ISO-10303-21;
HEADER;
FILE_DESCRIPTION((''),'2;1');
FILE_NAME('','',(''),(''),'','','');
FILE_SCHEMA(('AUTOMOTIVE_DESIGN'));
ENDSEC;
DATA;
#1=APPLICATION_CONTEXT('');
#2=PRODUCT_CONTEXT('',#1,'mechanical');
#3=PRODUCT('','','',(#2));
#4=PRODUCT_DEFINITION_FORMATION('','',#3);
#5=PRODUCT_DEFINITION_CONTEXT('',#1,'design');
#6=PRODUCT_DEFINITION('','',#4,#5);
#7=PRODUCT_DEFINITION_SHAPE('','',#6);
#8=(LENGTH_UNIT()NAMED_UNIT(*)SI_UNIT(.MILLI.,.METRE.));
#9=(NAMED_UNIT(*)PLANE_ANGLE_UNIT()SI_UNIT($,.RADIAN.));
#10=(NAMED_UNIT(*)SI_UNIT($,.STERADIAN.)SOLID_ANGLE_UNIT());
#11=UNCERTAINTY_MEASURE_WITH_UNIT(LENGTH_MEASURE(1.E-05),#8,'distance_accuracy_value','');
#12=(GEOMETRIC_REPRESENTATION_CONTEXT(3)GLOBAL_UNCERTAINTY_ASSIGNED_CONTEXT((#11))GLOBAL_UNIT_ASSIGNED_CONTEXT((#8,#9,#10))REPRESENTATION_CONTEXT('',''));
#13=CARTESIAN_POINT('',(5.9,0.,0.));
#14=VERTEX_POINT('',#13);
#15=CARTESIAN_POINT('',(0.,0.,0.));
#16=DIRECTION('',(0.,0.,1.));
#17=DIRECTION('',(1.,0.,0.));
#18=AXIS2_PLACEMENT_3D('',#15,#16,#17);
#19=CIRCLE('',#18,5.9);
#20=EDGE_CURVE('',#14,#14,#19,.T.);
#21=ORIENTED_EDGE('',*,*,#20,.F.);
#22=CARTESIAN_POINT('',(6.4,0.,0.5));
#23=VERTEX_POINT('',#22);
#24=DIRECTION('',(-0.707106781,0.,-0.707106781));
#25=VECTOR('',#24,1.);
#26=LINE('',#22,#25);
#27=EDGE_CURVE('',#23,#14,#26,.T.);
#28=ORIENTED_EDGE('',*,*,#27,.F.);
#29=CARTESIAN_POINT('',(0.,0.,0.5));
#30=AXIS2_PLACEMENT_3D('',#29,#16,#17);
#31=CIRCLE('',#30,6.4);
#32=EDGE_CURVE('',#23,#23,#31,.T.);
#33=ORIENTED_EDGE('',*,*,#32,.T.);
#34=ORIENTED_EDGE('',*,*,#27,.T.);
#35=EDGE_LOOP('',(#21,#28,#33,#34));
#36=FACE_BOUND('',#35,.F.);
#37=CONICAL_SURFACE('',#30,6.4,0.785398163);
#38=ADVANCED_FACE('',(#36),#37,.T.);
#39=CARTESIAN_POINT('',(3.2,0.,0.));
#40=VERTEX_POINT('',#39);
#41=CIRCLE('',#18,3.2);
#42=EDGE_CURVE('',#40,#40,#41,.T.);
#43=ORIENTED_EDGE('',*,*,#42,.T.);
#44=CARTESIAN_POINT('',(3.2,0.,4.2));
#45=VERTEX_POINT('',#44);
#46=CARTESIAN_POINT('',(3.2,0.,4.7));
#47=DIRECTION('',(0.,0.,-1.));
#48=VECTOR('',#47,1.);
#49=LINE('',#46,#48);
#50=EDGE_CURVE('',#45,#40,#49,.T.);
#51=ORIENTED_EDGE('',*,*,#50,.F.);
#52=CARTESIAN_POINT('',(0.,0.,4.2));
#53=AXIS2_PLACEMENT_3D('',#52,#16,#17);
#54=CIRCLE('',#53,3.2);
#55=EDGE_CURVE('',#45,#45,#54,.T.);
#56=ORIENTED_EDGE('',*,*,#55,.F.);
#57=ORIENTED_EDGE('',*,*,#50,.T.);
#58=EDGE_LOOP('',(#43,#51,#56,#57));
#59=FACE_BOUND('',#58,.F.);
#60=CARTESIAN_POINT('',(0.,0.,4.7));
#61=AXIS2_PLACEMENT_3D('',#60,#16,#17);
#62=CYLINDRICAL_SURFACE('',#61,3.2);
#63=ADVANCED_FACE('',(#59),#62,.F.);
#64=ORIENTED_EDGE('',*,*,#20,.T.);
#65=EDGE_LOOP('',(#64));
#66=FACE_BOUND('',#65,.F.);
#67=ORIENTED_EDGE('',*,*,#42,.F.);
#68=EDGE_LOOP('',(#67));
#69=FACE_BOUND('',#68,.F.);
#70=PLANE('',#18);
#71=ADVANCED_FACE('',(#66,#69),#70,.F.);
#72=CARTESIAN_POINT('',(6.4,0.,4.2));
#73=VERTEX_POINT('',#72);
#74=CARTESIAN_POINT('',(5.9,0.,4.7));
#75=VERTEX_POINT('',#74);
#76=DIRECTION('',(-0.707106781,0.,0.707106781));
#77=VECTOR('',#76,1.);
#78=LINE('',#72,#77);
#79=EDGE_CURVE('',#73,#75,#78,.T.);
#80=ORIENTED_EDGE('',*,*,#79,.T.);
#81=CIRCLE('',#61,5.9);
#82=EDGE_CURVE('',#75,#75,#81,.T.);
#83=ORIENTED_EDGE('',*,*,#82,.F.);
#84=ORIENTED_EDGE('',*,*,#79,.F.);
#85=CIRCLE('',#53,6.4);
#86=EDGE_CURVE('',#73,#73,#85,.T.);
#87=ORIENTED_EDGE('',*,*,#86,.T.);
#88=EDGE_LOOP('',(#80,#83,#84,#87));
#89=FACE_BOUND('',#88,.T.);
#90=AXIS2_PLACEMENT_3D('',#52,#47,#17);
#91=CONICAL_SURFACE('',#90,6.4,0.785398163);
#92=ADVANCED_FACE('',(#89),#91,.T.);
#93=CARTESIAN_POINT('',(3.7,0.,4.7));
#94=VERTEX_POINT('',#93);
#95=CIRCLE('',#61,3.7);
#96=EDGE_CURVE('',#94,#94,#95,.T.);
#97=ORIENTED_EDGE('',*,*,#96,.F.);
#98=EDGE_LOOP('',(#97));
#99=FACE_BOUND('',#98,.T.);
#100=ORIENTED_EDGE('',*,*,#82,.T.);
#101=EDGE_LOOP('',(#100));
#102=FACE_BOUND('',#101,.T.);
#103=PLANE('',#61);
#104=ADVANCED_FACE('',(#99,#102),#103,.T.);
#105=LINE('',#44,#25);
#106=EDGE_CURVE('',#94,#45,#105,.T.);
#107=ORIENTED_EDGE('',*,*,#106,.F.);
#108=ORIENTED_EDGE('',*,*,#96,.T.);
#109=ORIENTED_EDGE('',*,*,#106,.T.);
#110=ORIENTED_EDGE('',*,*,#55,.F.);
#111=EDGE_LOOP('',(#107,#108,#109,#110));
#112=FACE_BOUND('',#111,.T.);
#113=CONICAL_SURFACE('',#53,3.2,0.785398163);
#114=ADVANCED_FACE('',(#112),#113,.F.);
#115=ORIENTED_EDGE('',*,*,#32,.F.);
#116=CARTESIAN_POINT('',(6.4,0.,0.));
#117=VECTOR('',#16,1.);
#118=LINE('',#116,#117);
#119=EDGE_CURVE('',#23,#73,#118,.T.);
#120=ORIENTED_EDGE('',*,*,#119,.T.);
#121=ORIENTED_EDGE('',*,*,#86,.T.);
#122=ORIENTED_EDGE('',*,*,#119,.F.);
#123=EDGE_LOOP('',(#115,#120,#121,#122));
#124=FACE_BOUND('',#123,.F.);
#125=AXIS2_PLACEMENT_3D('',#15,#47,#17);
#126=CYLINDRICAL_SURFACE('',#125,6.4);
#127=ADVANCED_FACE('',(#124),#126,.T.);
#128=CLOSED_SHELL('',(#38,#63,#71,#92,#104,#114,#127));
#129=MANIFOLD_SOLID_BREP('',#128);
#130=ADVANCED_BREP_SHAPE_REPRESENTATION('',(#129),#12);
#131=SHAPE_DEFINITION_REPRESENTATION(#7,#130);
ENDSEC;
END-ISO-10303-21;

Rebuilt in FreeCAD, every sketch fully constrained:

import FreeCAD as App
import Part
import Sketcher


def edges_at(feature, points):
    """Names of the edges that pass closest to the given points."""
    edges = feature.Shape.Edges
    near = lambda p: min(range(len(edges)), key=lambda i: edges[i].distToShape(Part.Vertex(*p))[0])
    return sorted({f"Edge{near(p) + 1}" for p in points})

doc = App.newDocument("Part")
body = doc.addObject("PartDesign::Body", "Body")

# Sketch on XY plane
sketch1 = body.newObject("Sketcher::SketchObject", "Sketch")
sketch1.AttachmentSupport = (doc.getObject("XY_Plane"), [""])
sketch1.MapMode = "FlatFace"
sketch1.addGeometry(Part.Circle(App.Vector(0, 0, 0), App.Vector(0, 0, 1), 6.4), False)
sketch1.addConstraint(Sketcher.Constraint("Coincident", 0, 3, -1, 1))
sketch1.addConstraint(Sketcher.Constraint("Diameter", 0, 12.8))
pad1 = body.newObject("PartDesign::Pad", "Pad")
pad1.Profile = sketch1
pad1.Length = 4.7

# Sketch on XY plane
sketch2 = body.newObject("Sketcher::SketchObject", "Sketch001")
sketch2.AttachmentSupport = (doc.getObject("XY_Plane"), [""])
sketch2.MapMode = "FlatFace"
sketch2.AttachmentOffset = App.Placement(App.Vector(0, 0, 4.7), App.Rotation())
sketch2.addGeometry(Part.Circle(App.Vector(0, 0, 0), App.Vector(0, 0, 1), 3.2), False)
sketch2.addConstraint(Sketcher.Constraint("Coincident", 0, 3, -1, 1))
sketch2.addConstraint(Sketcher.Constraint("Diameter", 0, 6.4))
pocket1 = body.newObject("PartDesign::Pocket", "Pocket")
pocket1.Profile = sketch2
pocket1.Length = 25
doc.recompute()

chamfer = body.newObject("PartDesign::Chamfer", "Chamfer")
chamfer.Base = (pocket1, edges_at(pocket1, [(-6.4, 0, 4.7), (-3.2, 0, 4.7)]))
chamfer.Size = 0.5
doc.recompute()

chamfer2 = body.newObject("PartDesign::Chamfer", "Chamfer001")
chamfer2.Base = (chamfer, edges_at(chamfer, [(-6.4, 0, 0)]))
chamfer2.Size = 0.5

doc.recompute()
